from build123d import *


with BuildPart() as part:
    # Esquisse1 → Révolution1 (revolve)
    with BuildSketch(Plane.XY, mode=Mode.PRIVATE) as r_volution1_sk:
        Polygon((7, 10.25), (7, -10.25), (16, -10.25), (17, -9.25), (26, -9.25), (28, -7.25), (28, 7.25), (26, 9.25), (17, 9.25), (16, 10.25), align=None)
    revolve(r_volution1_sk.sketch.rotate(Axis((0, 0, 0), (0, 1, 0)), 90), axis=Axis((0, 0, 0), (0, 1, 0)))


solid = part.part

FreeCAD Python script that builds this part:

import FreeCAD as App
import Part
import Sketcher
from FreeCAD import Vector
Q = App.Units.Quantity

doc = App.newDocument("Part")
body = doc.addObject("PartDesign::Body", "Body")

sketch1 = body.newObject("Sketcher::SketchObject", "Sketch")
sketch1.AttachmentSupport = (doc.getObject("XY_Plane"), [""])
sketch1.MapMode = "FlatFace"
sketch1.addGeometry([
    Part.LineSegment(Vector(7, 10.25, 0), Vector(7, -10.25, 0)),
    Part.LineSegment(Vector(7, -10.25, 0), Vector(16, -10.25, 0)),
    Part.LineSegment(Vector(16, -10.25, 0), Vector(17, -9.25, 0)),
    Part.LineSegment(Vector(17, -9.25, 0), Vector(26, -9.25, 0)),
    Part.LineSegment(Vector(26, -9.25, 0), Vector(28, -7.25, 0)),
    Part.LineSegment(Vector(28, -7.25, 0), Vector(28, 7.25, 0)),
    Part.LineSegment(Vector(28, 7.25, 0), Vector(26, 9.25, 0)),
    Part.LineSegment(Vector(26, 9.25, 0), Vector(17, 9.25, 0)),
    Part.LineSegment(Vector(17, 9.25, 0), Vector(16, 10.25, 0)),
    Part.LineSegment(Vector(16, 10.25, 0), Vector(7, 10.25, 0)),
], False)
sketch1.addConstraint([
    Sketcher.Constraint("Coincident", 0, 2, 1, 1),
    Sketcher.Constraint("Coincident", 1, 2, 2, 1),
    Sketcher.Constraint("Coincident", 2, 2, 3, 1),
    Sketcher.Constraint("Coincident", 3, 2, 4, 1),
    Sketcher.Constraint("Coincident", 4, 2, 5, 1),
    Sketcher.Constraint("Coincident", 5, 2, 6, 1),
    Sketcher.Constraint("Coincident", 6, 2, 7, 1),
    Sketcher.Constraint("Coincident", 7, 2, 8, 1),
    Sketcher.Constraint("Coincident", 8, 2, 9, 1),
    Sketcher.Constraint("Coincident", 9, 2, 0, 1),
    Sketcher.Constraint("Vertical", 0),
    Sketcher.Constraint("Horizontal", 1),
    Sketcher.Constraint("Horizontal", 3),
    Sketcher.Constraint("Vertical", 5),
    Sketcher.Constraint("Horizontal", 7),
    Sketcher.Constraint("Horizontal", 9),
    Sketcher.Constraint("Symmetric", 3, 2, 6, 2, -1),
    Sketcher.Constraint("Symmetric", 1, 2, 8, 2, -1),
    Sketcher.Constraint("Parallel", 2, 4),
    Sketcher.Constraint("Perpendicular", 4, 6),
    Sketcher.Constraint("Parallel", 6, 8),
    Sketcher.Constraint("Vertical", 2, 2, 7, 2),
    Sketcher.Constraint("Equal", 1, 3),
    Sketcher.Constraint("DistanceX", 1, 1, 1, 2, Q("9 mm")),
    Sketcher.Constraint("DistanceY", 0, 2, 0, 1, Q("20.5 mm")),
    Sketcher.Constraint("DistanceY", 5, 1, 5, 2, Q("14.5 mm")),
    Sketcher.Constraint("DistanceX", -1, 1, 0, 2, Q("7 mm")),
    Sketcher.Constraint("DistanceX", -1, 1, 2, 2, Q("17 mm")),
])
revolution = body.newObject("PartDesign::Revolution", "Revolution")
revolution.Profile = sketch1
revolution.ReferenceAxis = (sketch1, ["V_Axis"])
revolution.Angle = 360

doc.recompute()
